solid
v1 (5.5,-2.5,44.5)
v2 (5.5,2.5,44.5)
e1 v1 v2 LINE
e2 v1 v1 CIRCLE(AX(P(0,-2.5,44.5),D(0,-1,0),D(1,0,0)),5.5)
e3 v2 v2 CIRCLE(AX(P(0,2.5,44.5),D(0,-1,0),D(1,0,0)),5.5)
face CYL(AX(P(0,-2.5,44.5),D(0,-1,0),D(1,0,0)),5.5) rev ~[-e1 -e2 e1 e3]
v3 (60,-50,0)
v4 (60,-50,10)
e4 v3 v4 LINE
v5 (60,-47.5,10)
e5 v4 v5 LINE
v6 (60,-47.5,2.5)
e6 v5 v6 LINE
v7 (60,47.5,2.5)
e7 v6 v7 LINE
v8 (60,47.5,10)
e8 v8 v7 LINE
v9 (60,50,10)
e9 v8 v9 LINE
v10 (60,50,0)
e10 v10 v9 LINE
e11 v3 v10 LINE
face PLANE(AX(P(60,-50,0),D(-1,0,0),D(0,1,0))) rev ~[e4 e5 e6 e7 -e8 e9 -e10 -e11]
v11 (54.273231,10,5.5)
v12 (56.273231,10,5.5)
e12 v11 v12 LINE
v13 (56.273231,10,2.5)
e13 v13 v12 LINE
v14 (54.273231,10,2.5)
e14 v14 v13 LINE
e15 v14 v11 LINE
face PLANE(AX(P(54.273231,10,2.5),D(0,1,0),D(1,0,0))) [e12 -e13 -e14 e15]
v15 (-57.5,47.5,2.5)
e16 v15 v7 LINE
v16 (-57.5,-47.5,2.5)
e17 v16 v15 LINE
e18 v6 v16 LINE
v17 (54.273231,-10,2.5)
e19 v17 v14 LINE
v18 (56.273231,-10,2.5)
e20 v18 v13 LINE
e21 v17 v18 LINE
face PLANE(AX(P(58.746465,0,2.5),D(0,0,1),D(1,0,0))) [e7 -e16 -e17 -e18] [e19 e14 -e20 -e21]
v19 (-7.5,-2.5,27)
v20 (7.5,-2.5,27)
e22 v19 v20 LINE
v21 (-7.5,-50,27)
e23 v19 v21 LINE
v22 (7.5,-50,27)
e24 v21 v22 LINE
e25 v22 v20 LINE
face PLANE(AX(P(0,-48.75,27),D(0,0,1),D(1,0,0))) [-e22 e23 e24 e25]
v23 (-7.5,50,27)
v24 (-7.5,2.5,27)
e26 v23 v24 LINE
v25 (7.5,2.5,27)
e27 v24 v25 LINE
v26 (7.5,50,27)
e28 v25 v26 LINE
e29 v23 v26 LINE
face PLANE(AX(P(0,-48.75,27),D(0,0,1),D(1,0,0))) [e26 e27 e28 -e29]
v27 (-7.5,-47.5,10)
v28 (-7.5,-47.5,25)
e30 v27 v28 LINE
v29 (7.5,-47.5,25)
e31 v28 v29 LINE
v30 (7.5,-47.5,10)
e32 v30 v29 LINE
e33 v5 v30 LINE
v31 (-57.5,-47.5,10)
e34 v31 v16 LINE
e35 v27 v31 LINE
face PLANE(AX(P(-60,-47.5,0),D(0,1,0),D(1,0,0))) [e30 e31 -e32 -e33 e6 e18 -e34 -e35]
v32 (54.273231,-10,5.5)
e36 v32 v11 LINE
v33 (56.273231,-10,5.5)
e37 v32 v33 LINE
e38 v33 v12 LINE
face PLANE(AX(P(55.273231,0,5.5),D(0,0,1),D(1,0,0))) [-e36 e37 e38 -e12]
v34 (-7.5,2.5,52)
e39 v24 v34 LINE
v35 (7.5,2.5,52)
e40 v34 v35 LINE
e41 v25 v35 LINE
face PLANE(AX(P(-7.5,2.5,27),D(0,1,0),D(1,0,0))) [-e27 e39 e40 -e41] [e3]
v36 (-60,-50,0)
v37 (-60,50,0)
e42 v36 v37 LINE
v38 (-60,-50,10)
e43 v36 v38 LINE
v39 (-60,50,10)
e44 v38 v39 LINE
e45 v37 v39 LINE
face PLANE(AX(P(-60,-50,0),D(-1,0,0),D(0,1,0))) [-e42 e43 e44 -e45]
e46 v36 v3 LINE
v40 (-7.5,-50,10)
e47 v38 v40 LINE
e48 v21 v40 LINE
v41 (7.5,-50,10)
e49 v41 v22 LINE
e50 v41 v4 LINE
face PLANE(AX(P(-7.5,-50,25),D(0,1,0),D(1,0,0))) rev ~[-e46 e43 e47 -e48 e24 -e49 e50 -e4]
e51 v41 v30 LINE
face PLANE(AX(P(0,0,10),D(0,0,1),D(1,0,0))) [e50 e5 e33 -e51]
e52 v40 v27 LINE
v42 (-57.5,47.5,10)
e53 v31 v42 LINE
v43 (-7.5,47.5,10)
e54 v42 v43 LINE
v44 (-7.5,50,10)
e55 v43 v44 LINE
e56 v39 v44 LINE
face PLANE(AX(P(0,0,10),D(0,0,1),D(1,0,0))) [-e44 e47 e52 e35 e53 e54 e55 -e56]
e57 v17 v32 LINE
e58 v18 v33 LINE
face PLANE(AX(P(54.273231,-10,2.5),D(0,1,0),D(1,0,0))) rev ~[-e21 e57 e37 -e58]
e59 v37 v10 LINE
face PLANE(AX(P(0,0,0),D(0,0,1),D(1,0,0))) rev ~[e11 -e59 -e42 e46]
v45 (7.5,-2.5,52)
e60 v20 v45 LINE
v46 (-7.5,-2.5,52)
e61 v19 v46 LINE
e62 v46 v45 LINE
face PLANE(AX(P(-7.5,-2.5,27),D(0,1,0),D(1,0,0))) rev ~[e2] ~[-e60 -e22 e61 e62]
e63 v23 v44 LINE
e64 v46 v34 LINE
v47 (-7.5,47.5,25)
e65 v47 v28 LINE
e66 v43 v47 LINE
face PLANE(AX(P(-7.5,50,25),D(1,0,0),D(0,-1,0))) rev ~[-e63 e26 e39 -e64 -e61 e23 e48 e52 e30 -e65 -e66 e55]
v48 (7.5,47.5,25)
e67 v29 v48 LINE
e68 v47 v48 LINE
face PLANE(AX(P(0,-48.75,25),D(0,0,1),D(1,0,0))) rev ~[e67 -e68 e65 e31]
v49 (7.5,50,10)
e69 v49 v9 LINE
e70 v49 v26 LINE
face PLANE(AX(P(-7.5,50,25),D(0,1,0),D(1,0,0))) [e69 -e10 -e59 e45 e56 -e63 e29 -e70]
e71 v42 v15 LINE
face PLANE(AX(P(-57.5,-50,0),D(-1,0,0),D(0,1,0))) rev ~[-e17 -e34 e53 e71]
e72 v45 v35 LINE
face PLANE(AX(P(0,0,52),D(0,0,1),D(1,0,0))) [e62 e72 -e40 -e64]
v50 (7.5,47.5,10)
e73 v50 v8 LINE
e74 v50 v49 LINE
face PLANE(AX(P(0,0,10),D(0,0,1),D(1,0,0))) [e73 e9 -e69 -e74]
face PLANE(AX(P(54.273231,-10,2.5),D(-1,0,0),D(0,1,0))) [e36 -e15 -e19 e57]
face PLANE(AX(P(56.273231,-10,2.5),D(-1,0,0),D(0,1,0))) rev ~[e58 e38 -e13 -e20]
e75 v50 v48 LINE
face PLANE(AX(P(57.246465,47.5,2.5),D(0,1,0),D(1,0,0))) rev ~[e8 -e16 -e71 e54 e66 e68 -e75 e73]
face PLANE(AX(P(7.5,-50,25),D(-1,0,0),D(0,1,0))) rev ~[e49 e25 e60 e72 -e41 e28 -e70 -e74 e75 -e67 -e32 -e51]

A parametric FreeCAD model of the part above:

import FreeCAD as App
import Part
import Sketcher
from FreeCAD import Vector
Q = App.Units.Quantity


def faces_at(feature, points):
    """Names of the faces that lie closest to the given points."""
    faces = feature.Shape.Faces
    near = lambda p: min(range(len(faces)), key=lambda i: faces[i].distToShape(Part.Vertex(*p))[0])
    return sorted({f"Face{near(p) + 1}" for p in points})

doc = App.newDocument("Part")
body = doc.addObject("PartDesign::Body", "Body")

# Sketch on XY plane
sketch1 = doc.addObject("Sketcher::SketchObject", "Sketch")
body.addObject(sketch1)
sketch1.AttachmentSupport = (doc.XY_Plane, [""])
sketch1.MapMode = "FlatFace"
sketch1.addGeometry(Part.LineSegment(Vector(-60, 50, 0), Vector(-60, -50, 0)), False)
sketch1.addGeometry(Part.LineSegment(Vector(-60, -50, 0), Vector(60, -50, 0)), False)
sketch1.addGeometry(Part.LineSegment(Vector(60, -50, 0), Vector(60, 50, 0)), False)
sketch1.addGeometry(Part.LineSegment(Vector(60, 50, 0), Vector(-60, 50, 0)), False)
sketch1.addConstraint(Sketcher.Constraint("Coincident", 0, 2, 1, 1))
sketch1.addConstraint(Sketcher.Constraint("Coincident", 1, 2, 2, 1))
sketch1.addConstraint(Sketcher.Constraint("Coincident", 2, 2, 3, 1))
sketch1.addConstraint(Sketcher.Constraint("Coincident", 3, 2, 0, 1))
sketch1.addConstraint(Sketcher.Constraint("Vertical", 0))
sketch1.addConstraint(Sketcher.Constraint("Horizontal", 1))
sketch1.addConstraint(Sketcher.Constraint("Vertical", 2))
sketch1.addConstraint(Sketcher.Constraint("Horizontal", 3))
sketch1.addConstraint(Sketcher.Constraint("Symmetric", 0, 2, 2, 2, -1, 1))
sketch1.addConstraint(Sketcher.Constraint("DistanceX", 1, 1, 1, 2, Q("120 mm")))
sketch1.addConstraint(Sketcher.Constraint("DistanceY", 0, 2, 0, 1, Q("100 mm")))
pad1 = doc.addObject("PartDesign::Pad", "Pad")
body.addObject(pad1)
pad1.Profile = sketch1
pad1.Length = 10
doc.recompute()

thickness = doc.addObject("PartDesign::Thickness", "Thickness")
body.addObject(thickness)
thickness.Base = (pad1, faces_at(pad1, [(0, 0, 10)]))
thickness.Value = 2.5
thickness.Reversed = True
thickness.Join = "Arc"

# Sketch on XY plane
sketch2 = doc.addObject("Sketcher::SketchObject", "Sketch001")
body.addObject(sketch2)
sketch2.AttachmentSupport = (doc.XY_Plane, [""])
sketch2.MapMode = "FlatFace"
sketch2.AttachmentOffset = App.Placement(Vector(0, 0, 2.5), App.Rotation())
sketch2.addGeometry(Part.LineSegment(Vector(57.2, 47.5, 0), Vector(57.2, -47.5, 0)), False)
sketch2.addGeometry(Part.LineSegment(Vector(57.2, -47.5, 0), Vector(60.2, -47.5, 0)), False)
sketch2.addGeometry(Part.LineSegment(Vector(60.2, -47.5, 0), Vector(60.2, 47.5, 0)), False)
sketch2.addGeometry(Part.LineSegment(Vector(60.2, 47.5, 0), Vector(57.2, 47.5, 0)), False)
sketch2.addConstraint(Sketcher.Constraint("Coincident", 0, 2, 1, 1))
sketch2.addConstraint(Sketcher.Constraint("Coincident", 1, 2, 2, 1))
sketch2.addConstraint(Sketcher.Constraint("Coincident", 2, 2, 3, 1))
sketch2.addConstraint(Sketcher.Constraint("Coincident", 3, 2, 0, 1))
sketch2.addConstraint(Sketcher.Constraint("Vertical", 0))
sketch2.addConstraint(Sketcher.Constraint("Horizontal", 1))
sketch2.addConstraint(Sketcher.Constraint("Vertical", 2))
sketch2.addConstraint(Sketcher.Constraint("Horizontal", 3))
sketch2.addConstraint(Sketcher.Constraint("DistanceX", 1, 1, 1, 2, Q("3 mm")))
sketch2.addConstraint(Sketcher.Constraint("DistanceY", 0, 2, 0, 1, Q("95 mm")))
sketch2.addConstraint(Sketcher.Constraint("DistanceY", 0, 2, -1, 1, Q("47.5 mm")))
sketch2.addConstraint(Sketcher.Constraint("DistanceX", -1, 1, 0, 2, Q("57.246465 mm")))
pocket1 = doc.addObject("PartDesign::Pocket", "Pocket")
body.addObject(pocket1)
pocket1.Profile = sketch2
pocket1.Length = 10
pocket1.Reversed = True

# Sketch on XY plane
sketch3 = doc.addObject("Sketcher::SketchObject", "Sketch002")
body.addObject(sketch3)
sketch3.AttachmentSupport = (doc.XY_Plane, [""])
sketch3.MapMode = "FlatFace"
sketch3.AttachmentOffset = App.Placement(Vector(0, 0, 10), App.Rotation())
sketch3.addGeometry(Part.LineSegment(Vector(-7.5, -47.5, 0), Vector(-7.5, -50, 0)), False)
sketch3.addGeometry(Part.LineSegment(Vector(-7.5, -50, 0), Vector(7.5, -50, 0)), False)
sketch3.addGeometry(Part.LineSegment(Vector(7.5, -50, 0), Vector(7.5, -47.5, 0)), False)
sketch3.addGeometry(Part.LineSegment(Vector(7.5, -47.5, 0), Vector(-7.5, -47.5, 0)), False)
sketch3.addGeometry(Part.LineSegment(Vector(-7.5, 50, 0), Vector(-7.5, 47.5, 0)), False)
sketch3.addGeometry(Part.LineSegment(Vector(-7.5, 47.5, 0), Vector(7.5, 47.5, 0)), False)
sketch3.addGeometry(Part.LineSegment(Vector(7.5, 47.5, 0), Vector(7.5, 50, 0)), False)
sketch3.addGeometry(Part.LineSegment(Vector(7.5, 50, 0), Vector(-7.5, 50, 0)), False)
sketch3.addConstraint(Sketcher.Constraint("Coincident", 0, 2, 1, 1))
sketch3.addConstraint(Sketcher.Constraint("Coincident", 1, 2, 2, 1))
sketch3.addConstraint(Sketcher.Constraint("Coincident", 2, 2, 3, 1))
sketch3.addConstraint(Sketcher.Constraint("Coincident", 3, 2, 0, 1))
sketch3.addConstraint(Sketcher.Constraint("Coincident", 4, 2, 5, 1))
sketch3.addConstraint(Sketcher.Constraint("Coincident", 5, 2, 6, 1))
sketch3.addConstraint(Sketcher.Constraint("Coincident", 6, 2, 7, 1))
sketch3.addConstraint(Sketcher.Constraint("Coincident", 7, 2, 4, 1))
sketch3.addConstraint(Sketcher.Constraint("Vertical", 0))
sketch3.addConstraint(Sketcher.Constraint("Horizontal", 1))
sketch3.addConstraint(Sketcher.Constraint("Vertical", 2))
sketch3.addConstraint(Sketcher.Constraint("Horizontal", 3))
sketch3.addConstraint(Sketcher.Constraint("Vertical", 4))
sketch3.addConstraint(Sketcher.Constraint("Horizontal", 5))
sketch3.addConstraint(Sketcher.Constraint("Vertical", 6))
sketch3.addConstraint(Sketcher.Constraint("Horizontal", 7))
sketch3.addConstraint(Sketcher.Constraint("Symmetric", 2, 2, 4, 2, -1, 1))
sketch3.addConstraint(Sketcher.Constraint("Symmetric", 0, 2, 6, 2, -1, 1))
sketch3.addConstraint(Sketcher.Constraint("Vertical", 3, 2, 4, 2))
sketch3.addConstraint(Sketcher.Constraint("DistanceX", 1, 1, 1, 2, Q("15 mm")))
sketch3.addConstraint(Sketcher.Constraint("DistanceY", 0, 2, 0, 1, Q("2.5 mm")))
sketch3.addConstraint(Sketcher.Constraint("DistanceY", 0, 2, -1, 1, Q("50 mm")))
pad2 = doc.addObject("PartDesign::Pad", "Pad001")
body.addObject(pad2)
pad2.Profile = sketch3
pad2.Length = 15

# Sketch on XY plane
sketch4 = doc.addObject("Sketcher::SketchObject", "Sketch003")
body.addObject(sketch4)
sketch4.AttachmentSupport = (doc.XY_Plane, [""])
sketch4.MapMode = "FlatFace"
sketch4.AttachmentOffset = App.Placement(Vector(0, 0, 25), App.Rotation())
sketch4.addGeometry(Part.LineSegment(Vector(-8, -50, 0), Vector(8, -50, 0)), False)
sketch4.addGeometry(Part.LineSegment(Vector(8, -50, 0), Vector(8, 50, 0)), False)
sketch4.addGeometry(Part.LineSegment(Vector(8, 50, 0), Vector(-8, 50, 0)), False)
sketch4.addGeometry(Part.LineSegment(Vector(-8, 50, 0), Vector(-8, -50, 0)), False)
sketch4.addConstraint(Sketcher.Constraint("Coincident", 0, 2, 1, 1))
sketch4.addConstraint(Sketcher.Constraint("Coincident", 1, 2, 2, 1))
sketch4.addConstraint(Sketcher.Constraint("Coincident", 2, 2, 3, 1))
sketch4.addConstraint(Sketcher.Constraint("Coincident", 3, 2, 0, 1))
sketch4.addConstraint(Sketcher.Constraint("Horizontal", 0))
sketch4.addConstraint(Sketcher.Constraint("Vertical", 1))
sketch4.addConstraint(Sketcher.Constraint("Horizontal", 2))
sketch4.addConstraint(Sketcher.Constraint("Vertical", 3))
sketch4.addConstraint(Sketcher.Constraint("Symmetric", 0, 2, 2, 2, -1, 1))
sketch4.addConstraint(Sketcher.Constraint("DistanceX", 0, 1, 0, 2, Q("15 mm")))
sketch4.addConstraint(Sketcher.Constraint("DistanceY", 1, 1, 1, 2, Q("100 mm")))
pad3 = doc.addObject("PartDesign::Pad", "Pad002")
body.addObject(pad3)
pad3.Profile = sketch4
pad3.Length = 2

# Sketch on XY plane
sketch5 = doc.addObject("Sketcher::SketchObject", "Sketch004")
body.addObject(sketch5)
sketch5.AttachmentSupport = (doc.XY_Plane, [""])
sketch5.MapMode = "FlatFace"
sketch5.AttachmentOffset = App.Placement(Vector(0, 0, 27), App.Rotation())
sketch5.addGeometry(Part.LineSegment(Vector(-8, 2, 0), Vector(-8, -2, 0)), False)
sketch5.addGeometry(Part.LineSegment(Vector(-8, -2, 0), Vector(8, -2, 0)), False)
sketch5.addGeometry(Part.LineSegment(Vector(8, -2, 0), Vector(8, 2, 0)), False)
sketch5.addGeometry(Part.LineSegment(Vector(8, 2, 0), Vector(-8, 2, 0)), False)
sketch5.addConstraint(Sketcher.Constraint("Coincident", 0, 2, 1, 1))
sketch5.addConstraint(Sketcher.Constraint("Coincident", 1, 2, 2, 1))
sketch5.addConstraint(Sketcher.Constraint("Coincident", 2, 2, 3, 1))
sketch5.addConstraint(Sketcher.Constraint("Coincident", 3, 2, 0, 1))
sketch5.addConstraint(Sketcher.Constraint("Vertical", 0))
sketch5.addConstraint(Sketcher.Constraint("Horizontal", 1))
sketch5.addConstraint(Sketcher.Constraint("Vertical", 2))
sketch5.addConstraint(Sketcher.Constraint("Horizontal", 3))
sketch5.addConstraint(Sketcher.Constraint("Symmetric", 0, 2, 2, 2, -1, 1))
sketch5.addConstraint(Sketcher.Constraint("DistanceX", 1, 1, 1, 2, Q("15 mm")))
sketch5.addConstraint(Sketcher.Constraint("DistanceY", 0, 2, 0, 1, Q("5 mm")))
pad4 = doc.addObject("PartDesign::Pad", "Pad003")
body.addObject(pad4)
pad4.Profile = sketch5
pad4.Length = 25

# Sketch on XZ plane
sketch6 = doc.addObject("Sketcher::SketchObject", "Sketch005")
body.addObject(sketch6)
sketch6.AttachmentSupport = (doc.XZ_Plane, [""])
sketch6.MapMode = "FlatFace"
sketch6.AttachmentOffset = App.Placement(Vector(0, 0, 2.5), App.Rotation())
sketch6.addGeometry(Part.Circle(Vector(0, 44, 0), Vector(0, 0, 1), 6), False)
sketch6.addConstraint(Sketcher.Constraint("PointOnObject", 0, 3, -2))
sketch6.addConstraint(Sketcher.Constraint("Diameter", 0, Q("11 mm")))
sketch6.addConstraint(Sketcher.Constraint("DistanceY", -1, 1, 0, 3, Q("44.5 mm")))
pocket2 = doc.addObject("PartDesign::Pocket", "Pocket001")
body.addObject(pocket2)
pocket2.Profile = sketch6
pocket2.Type = "ThroughAll"

# Sketch on XY plane
sketch7 = doc.addObject("Sketcher::SketchObject", "Sketch006")
body.addObject(sketch7)
sketch7.AttachmentSupport = (doc.XY_Plane, [""])
sketch7.MapMode = "FlatFace"
sketch7.AttachmentOffset = App.Placement(Vector(0, 0, 2.5), App.Rotation())
sketch7.addGeometry(Part.LineSegment(Vector(54.3, 10, 0), Vector(54.3, -10, 0)), False)
sketch7.addGeometry(Part.LineSegment(Vector(54.3, -10, 0), Vector(56.3, -10, 0)), False)
sketch7.addGeometry(Part.LineSegment(Vector(56.3, -10, 0), Vector(56.3, 10, 0)), False)
sketch7.addGeometry(Part.LineSegment(Vector(56.3, 10, 0), Vector(54.3, 10, 0)), False)
sketch7.addConstraint(Sketcher.Constraint("Coincident", 0, 2, 1, 1))
sketch7.addConstraint(Sketcher.Constraint("Coincident", 1, 2, 2, 1))
sketch7.addConstraint(Sketcher.Constraint("Coincident", 2, 2, 3, 1))
sketch7.addConstraint(Sketcher.Constraint("Coincident", 3, 2, 0, 1))
sketch7.addConstraint(Sketcher.Constraint("Vertical", 0))
sketch7.addConstraint(Sketcher.Constraint("Horizontal", 1))
sketch7.addConstraint(Sketcher.Constraint("Vertical", 2))
sketch7.addConstraint(Sketcher.Constraint("Horizontal", 3))
sketch7.addConstraint(Sketcher.Constraint("DistanceX", 1, 1, 1, 2, Q("2 mm")))
sketch7.addConstraint(Sketcher.Constraint("DistanceY", 0, 2, 0, 1, Q("20 mm")))
sketch7.addConstraint(Sketcher.Constraint("DistanceY", 0, 2, -1, 1, Q("10 mm")))
sketch7.addConstraint(Sketcher.Constraint("DistanceX", -1, 1, 0, 2, Q("54.273231 mm")))
pad5 = doc.addObject("PartDesign::Pad", "Pad004")
body.addObject(pad5)
pad5.Profile = sketch7
pad5.Length = 3

doc.recompute()
